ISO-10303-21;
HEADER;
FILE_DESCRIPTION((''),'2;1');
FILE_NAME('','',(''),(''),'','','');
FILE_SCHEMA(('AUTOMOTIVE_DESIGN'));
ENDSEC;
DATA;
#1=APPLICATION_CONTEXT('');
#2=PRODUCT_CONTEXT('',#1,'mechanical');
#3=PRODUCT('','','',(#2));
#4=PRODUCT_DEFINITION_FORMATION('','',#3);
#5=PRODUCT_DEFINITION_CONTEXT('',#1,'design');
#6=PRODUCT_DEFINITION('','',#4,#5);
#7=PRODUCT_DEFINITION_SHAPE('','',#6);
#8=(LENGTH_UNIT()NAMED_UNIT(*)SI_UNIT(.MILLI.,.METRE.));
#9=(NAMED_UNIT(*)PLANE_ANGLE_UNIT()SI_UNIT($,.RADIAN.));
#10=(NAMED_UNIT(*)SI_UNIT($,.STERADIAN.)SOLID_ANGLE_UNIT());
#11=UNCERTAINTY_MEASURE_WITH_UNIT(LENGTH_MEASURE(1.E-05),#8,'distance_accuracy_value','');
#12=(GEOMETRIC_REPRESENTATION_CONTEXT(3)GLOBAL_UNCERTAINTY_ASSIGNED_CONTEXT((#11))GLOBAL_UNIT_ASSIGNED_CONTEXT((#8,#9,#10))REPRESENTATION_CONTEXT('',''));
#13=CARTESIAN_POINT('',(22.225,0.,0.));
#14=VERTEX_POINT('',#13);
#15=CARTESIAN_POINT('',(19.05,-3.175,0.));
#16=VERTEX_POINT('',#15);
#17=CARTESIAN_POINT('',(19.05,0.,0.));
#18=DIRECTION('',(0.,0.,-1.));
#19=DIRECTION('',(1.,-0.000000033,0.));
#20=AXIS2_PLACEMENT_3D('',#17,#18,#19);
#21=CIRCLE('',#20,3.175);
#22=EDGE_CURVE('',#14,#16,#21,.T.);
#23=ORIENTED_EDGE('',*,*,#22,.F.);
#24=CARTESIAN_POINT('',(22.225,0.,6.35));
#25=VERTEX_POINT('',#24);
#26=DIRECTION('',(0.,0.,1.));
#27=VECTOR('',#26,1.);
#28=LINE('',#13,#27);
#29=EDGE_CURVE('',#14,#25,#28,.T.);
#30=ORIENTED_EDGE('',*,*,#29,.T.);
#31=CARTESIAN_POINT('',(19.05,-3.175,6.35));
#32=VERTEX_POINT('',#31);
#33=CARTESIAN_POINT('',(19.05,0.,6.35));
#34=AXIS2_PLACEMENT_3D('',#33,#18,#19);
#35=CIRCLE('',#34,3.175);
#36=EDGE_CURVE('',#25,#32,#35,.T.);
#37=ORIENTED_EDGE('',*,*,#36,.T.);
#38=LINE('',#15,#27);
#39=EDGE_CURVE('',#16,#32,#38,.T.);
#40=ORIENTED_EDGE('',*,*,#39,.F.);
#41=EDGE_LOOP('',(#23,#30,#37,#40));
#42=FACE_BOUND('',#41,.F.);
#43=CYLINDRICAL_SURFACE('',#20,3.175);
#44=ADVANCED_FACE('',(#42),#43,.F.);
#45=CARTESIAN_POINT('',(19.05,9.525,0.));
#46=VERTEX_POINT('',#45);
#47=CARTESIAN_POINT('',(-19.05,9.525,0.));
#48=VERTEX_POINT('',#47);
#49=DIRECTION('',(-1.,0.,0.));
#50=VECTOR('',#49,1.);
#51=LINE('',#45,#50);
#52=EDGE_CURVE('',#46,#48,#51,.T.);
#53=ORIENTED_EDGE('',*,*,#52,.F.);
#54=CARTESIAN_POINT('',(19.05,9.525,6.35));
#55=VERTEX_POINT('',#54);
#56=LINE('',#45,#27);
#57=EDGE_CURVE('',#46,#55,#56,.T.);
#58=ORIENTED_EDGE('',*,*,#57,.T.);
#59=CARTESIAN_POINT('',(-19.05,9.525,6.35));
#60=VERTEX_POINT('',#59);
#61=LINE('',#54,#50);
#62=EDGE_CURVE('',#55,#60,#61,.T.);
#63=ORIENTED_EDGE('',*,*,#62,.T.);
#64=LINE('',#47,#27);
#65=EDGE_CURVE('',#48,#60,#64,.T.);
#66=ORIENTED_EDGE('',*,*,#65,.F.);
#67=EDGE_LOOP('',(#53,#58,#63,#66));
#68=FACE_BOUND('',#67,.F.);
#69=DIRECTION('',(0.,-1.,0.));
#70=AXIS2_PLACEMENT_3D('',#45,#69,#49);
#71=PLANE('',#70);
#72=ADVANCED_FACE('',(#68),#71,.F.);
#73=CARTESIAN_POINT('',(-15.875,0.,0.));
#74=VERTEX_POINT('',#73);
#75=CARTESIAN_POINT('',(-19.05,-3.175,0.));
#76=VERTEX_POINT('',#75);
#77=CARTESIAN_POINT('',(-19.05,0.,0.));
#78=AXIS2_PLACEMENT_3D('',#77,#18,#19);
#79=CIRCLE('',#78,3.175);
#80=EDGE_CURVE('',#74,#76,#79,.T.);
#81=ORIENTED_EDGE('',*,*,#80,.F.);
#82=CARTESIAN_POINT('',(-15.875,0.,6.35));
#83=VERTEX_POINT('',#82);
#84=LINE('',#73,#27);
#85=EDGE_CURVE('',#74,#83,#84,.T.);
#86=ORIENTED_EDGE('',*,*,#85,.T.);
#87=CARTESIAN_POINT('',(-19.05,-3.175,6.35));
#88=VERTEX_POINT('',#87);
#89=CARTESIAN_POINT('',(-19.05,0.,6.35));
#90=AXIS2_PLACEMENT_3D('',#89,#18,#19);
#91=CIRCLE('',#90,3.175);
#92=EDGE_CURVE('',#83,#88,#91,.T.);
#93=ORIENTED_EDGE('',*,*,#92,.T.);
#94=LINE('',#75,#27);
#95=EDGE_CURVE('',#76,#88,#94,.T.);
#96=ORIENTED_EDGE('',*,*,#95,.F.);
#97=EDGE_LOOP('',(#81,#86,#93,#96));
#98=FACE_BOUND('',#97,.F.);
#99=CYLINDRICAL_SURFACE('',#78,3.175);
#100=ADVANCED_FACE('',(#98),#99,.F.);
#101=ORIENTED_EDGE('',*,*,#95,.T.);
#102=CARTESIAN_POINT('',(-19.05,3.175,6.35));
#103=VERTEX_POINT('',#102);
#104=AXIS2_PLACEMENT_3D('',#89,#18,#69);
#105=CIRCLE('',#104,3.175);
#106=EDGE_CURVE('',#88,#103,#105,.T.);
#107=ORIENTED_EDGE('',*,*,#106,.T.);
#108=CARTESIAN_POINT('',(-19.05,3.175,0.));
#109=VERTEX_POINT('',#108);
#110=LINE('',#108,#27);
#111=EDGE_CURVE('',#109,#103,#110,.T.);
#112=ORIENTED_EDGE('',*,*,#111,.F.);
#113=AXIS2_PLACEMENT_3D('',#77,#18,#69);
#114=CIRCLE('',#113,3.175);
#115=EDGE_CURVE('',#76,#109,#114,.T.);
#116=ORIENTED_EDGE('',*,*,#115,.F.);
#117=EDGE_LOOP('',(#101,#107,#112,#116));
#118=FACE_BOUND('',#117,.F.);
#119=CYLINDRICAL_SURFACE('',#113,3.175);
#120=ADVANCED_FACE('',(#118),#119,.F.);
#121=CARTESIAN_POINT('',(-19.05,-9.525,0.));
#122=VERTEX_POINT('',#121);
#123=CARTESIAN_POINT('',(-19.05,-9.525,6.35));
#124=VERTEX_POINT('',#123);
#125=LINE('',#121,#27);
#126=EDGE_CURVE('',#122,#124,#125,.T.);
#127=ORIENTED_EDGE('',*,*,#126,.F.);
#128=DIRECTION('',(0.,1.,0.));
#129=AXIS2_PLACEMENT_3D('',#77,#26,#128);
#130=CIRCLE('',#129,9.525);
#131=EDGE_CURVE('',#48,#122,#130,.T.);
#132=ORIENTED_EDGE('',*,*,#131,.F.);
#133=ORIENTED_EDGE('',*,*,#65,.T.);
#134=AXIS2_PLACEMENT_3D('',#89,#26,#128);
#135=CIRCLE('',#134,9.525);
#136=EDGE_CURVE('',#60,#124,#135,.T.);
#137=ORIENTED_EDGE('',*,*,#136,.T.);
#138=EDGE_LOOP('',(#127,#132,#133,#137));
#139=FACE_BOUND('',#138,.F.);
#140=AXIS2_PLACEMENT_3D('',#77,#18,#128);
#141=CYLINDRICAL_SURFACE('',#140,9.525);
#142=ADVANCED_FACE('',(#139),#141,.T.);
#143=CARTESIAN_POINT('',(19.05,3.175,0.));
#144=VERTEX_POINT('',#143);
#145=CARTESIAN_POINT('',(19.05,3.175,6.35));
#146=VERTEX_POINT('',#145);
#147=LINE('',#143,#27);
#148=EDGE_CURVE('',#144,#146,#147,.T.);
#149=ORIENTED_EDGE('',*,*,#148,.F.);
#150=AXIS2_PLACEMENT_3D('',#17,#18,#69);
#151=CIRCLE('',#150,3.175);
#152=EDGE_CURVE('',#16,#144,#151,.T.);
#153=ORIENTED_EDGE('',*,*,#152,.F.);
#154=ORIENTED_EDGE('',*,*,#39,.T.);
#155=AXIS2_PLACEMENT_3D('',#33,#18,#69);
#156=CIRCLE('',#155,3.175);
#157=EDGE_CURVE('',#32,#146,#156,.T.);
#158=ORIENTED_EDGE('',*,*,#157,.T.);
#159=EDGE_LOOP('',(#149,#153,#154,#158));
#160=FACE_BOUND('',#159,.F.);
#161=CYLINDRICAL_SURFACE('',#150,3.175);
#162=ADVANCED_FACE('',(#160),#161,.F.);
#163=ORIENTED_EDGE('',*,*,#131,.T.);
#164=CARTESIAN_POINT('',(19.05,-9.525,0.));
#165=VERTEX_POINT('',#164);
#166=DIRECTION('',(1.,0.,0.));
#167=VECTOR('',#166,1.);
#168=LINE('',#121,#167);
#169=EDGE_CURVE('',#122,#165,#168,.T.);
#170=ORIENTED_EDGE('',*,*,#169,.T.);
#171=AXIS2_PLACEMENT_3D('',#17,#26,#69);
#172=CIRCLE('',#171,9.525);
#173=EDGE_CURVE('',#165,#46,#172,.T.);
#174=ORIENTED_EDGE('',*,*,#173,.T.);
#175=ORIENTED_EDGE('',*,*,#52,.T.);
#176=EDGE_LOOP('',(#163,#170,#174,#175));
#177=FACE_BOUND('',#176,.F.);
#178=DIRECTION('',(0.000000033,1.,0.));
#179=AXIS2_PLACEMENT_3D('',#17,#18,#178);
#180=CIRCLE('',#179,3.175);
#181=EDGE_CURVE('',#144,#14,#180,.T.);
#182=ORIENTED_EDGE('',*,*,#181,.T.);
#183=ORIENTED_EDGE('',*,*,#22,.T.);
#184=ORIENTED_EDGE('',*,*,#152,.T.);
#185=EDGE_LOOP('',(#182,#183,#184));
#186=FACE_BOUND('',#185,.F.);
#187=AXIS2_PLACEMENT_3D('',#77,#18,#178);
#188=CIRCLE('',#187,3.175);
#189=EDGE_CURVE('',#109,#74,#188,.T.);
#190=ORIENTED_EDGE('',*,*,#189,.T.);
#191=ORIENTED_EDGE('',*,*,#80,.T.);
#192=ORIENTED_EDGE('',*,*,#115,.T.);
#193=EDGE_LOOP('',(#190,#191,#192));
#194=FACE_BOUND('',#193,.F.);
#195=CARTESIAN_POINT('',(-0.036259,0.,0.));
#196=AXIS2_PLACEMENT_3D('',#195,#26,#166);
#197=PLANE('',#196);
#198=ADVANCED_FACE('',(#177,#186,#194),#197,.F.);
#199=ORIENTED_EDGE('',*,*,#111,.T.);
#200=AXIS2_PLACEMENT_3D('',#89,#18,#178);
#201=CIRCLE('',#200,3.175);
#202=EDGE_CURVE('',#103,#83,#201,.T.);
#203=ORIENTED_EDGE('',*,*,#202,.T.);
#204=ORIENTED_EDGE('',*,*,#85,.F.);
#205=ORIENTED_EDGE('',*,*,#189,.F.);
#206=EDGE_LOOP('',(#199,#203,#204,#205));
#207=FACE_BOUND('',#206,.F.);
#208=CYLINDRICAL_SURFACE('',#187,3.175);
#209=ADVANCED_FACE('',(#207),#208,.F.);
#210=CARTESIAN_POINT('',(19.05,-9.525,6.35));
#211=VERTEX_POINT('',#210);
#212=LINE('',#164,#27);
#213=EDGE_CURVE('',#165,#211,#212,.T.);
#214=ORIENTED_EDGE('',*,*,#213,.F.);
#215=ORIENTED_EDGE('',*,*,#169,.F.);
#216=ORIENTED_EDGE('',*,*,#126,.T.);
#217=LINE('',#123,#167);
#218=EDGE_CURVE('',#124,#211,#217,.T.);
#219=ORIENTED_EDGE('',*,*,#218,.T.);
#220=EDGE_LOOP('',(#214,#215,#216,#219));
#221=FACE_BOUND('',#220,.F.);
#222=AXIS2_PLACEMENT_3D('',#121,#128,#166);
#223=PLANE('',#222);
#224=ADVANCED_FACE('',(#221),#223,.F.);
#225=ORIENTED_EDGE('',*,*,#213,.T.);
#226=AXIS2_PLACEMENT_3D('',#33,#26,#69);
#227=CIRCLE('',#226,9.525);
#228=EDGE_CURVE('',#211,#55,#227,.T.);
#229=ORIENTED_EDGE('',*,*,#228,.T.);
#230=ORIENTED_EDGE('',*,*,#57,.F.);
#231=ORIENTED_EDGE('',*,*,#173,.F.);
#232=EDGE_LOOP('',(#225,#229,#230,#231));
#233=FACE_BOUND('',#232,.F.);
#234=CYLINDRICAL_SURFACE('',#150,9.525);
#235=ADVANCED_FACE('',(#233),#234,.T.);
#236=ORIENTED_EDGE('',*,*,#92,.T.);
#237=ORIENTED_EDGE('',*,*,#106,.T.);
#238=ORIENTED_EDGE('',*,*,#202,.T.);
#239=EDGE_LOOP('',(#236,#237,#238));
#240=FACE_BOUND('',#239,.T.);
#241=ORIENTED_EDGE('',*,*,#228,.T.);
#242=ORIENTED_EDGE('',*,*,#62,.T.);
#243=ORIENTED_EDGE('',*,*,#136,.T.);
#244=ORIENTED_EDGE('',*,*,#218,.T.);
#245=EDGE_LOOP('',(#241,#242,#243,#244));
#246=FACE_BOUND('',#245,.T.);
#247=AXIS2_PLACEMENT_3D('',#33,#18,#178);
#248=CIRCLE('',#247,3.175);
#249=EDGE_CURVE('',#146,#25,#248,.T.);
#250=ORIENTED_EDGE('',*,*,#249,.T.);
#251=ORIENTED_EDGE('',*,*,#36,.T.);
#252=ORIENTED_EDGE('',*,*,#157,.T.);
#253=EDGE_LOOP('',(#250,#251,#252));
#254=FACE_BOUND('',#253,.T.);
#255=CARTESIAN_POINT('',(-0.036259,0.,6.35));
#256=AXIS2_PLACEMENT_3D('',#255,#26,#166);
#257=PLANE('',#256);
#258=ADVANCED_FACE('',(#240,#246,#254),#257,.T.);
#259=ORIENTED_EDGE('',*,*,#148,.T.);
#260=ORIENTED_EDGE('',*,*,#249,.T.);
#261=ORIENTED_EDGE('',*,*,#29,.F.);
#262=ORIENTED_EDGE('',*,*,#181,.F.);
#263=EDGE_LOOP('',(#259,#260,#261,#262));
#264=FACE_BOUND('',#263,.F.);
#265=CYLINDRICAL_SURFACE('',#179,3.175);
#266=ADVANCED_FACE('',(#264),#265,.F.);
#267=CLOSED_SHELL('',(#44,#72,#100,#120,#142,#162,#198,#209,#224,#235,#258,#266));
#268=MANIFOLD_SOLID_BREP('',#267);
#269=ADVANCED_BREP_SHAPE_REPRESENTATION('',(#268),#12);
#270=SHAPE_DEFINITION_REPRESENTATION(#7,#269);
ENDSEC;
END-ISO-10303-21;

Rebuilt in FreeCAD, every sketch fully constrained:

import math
import FreeCAD as App
import Part
import Sketcher

V = App.Vector
Q = App.Units.Quantity

doc = App.newDocument("Part")
body = doc.addObject("PartDesign::Body", "Body")

# Sketch on XY plane
sketch1 = doc.addObject("Sketcher::SketchObject", "Sketch")
body.addObject(sketch1)
sketch1.AttachmentSupport = (doc.XY_Plane, [""])
sketch1.MapMode = "FlatFace"
sketch1.addGeometry([
    Part.LineSegment(V(19.1, 9.5, 0), V(-19.1, 9.5, 0)),  # 0
    Part.ArcOfCircle(Part.Circle(V(-19.1, 0, 0), V(0, 0, 1), 9.5), math.radians(90), math.radians(270)),  # 1
    Part.LineSegment(V(-19.1, -9.5, 0), V(19.1, -9.5, 0)),  # 2
    Part.ArcOfCircle(Part.Circle(V(19.1, 0, 0), V(0, 0, 1), 9.5), math.radians(-90), math.radians(90)),  # 3
    Part.ArcOfCircle(Part.Circle(V(-19.1, 0, 0), V(0, 0, 1), 3.2), math.radians(0), math.radians(90)),  # 4
    Part.ArcOfCircle(Part.Circle(V(-19.1, 0, 0), V(0, 0, 1), 3.2), math.radians(-90), math.radians(0)),  # 5
    Part.ArcOfCircle(Part.Circle(V(-19.1, 0, 0), V(0, 0, 1), 3.2), math.radians(90), math.radians(270)),  # 6
    Part.ArcOfCircle(Part.Circle(V(19.1, 0, 0), V(0, 0, 1), 3.2), math.radians(90), math.radians(270)),  # 7
    Part.ArcOfCircle(Part.Circle(V(19, 0, 0), V(0, 0, 1), 3.2), math.radians(0), math.radians(90)),  # 8
    Part.ArcOfCircle(Part.Circle(V(19, 0, 0), V(0, 0, 1), 3.2), math.radians(-90), math.radians(0)),  # 9
], False)
sketch1.addConstraint([
    Sketcher.Constraint("Tangent", 0, 2, 1, 1),
    Sketcher.Constraint("Tangent", 1, 2, 2, 1),
    Sketcher.Constraint("Tangent", 2, 2, 3, 1),
    Sketcher.Constraint("Tangent", 3, 2, 0, 1),
    Sketcher.Constraint("Tangent", 4, 1, 5, 2),
    Sketcher.Constraint("Tangent", 5, 1, 6, 2),
    Sketcher.Constraint("Tangent", 6, 1, 4, 2),
    Sketcher.Constraint("Tangent", 7, 1, 8, 2),
    Sketcher.Constraint("Tangent", 8, 1, 9, 2),
    Sketcher.Constraint("Tangent", 9, 1, 7, 2),
    Sketcher.Constraint("Horizontal", 0),
    Sketcher.Constraint("Horizontal", 2),
    Sketcher.Constraint("Coincident", 4, 3, 1, 3),
    Sketcher.Constraint("Coincident", 7, 3, 3, 3),
    Sketcher.Constraint("Equal", 6, 7),
    Sketcher.Constraint("Symmetric", 1, 3, 3, 3, -1, 1),
    Sketcher.Constraint("PointOnObject", 4, 1, -1),
    Sketcher.Constraint("PointOnObject", 8, 1, -1),
    Sketcher.Constraint("Vertical", 1, 2, 5, 1),
    Sketcher.Constraint("Vertical", 5, 1, 6, 1),
    Sketcher.Constraint("Vertical", 3, 2, 7, 1),
    Sketcher.Constraint("Vertical", 7, 1, 9, 1),
    Sketcher.Constraint("DistanceX", 0, 2, 0, 1, Q("1.5 in")),
    Sketcher.Constraint("Radius", 1, Q("0.375 in")),
    Sketcher.Constraint("Radius", 4, Q("0.125 in")),
])
pad1 = doc.addObject("PartDesign::Pad", "Pad")
body.addObject(pad1)
pad1.Profile = sketch1
pad1.Length = Q("0.25 in")

doc.recompute()
